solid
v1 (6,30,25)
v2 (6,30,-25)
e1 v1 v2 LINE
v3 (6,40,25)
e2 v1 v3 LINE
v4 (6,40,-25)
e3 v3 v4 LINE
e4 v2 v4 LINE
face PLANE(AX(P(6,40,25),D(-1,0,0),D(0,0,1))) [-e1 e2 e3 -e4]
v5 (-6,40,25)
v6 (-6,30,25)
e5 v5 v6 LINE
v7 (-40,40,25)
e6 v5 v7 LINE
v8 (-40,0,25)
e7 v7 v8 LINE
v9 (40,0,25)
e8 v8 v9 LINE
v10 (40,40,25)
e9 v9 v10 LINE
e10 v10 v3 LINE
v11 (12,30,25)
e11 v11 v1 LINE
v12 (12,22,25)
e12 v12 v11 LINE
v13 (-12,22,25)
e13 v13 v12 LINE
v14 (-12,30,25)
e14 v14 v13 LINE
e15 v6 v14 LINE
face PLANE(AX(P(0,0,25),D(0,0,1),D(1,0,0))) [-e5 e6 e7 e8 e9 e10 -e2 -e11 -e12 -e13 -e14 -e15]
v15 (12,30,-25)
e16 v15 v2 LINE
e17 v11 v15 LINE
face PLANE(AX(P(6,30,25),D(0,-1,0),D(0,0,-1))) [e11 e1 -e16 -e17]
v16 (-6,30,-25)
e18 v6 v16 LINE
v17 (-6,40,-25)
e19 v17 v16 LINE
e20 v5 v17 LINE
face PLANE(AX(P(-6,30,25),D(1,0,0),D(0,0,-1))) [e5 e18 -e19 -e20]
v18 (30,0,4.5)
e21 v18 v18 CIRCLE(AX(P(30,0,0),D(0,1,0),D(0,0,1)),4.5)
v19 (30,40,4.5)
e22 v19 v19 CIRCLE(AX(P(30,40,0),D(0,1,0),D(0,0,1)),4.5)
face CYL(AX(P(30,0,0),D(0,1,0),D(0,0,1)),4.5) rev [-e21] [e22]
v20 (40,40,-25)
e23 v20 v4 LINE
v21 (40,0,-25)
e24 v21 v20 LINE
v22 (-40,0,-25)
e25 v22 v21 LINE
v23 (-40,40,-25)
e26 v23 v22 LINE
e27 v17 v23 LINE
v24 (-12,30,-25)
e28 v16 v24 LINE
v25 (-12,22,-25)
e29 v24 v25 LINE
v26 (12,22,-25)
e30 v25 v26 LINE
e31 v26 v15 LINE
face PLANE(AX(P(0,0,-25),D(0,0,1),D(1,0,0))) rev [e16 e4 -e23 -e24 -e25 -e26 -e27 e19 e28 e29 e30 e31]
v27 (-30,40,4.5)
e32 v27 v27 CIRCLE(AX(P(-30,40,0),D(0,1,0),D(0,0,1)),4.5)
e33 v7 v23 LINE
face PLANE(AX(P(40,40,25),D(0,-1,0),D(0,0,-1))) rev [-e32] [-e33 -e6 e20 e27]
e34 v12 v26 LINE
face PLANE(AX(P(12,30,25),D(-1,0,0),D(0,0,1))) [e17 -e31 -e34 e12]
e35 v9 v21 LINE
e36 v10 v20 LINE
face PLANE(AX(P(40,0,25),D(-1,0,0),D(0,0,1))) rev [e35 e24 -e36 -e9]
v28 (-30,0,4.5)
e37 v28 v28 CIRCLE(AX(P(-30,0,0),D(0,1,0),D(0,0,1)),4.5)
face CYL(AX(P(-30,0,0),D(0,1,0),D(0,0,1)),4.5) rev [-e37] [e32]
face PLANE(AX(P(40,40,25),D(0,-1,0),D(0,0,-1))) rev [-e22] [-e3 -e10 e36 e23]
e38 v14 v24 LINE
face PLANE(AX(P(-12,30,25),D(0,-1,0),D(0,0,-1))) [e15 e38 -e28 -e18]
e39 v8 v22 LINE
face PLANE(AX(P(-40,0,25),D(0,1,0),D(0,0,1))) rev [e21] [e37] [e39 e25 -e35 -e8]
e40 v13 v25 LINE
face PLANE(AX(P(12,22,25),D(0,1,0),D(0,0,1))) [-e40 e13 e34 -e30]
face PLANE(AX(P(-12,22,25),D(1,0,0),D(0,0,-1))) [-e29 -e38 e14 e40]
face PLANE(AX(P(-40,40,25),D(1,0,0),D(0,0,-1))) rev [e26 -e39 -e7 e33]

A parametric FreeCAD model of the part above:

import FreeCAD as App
import Part
import Sketcher

V = App.Vector
Q = App.Units.Quantity

doc = App.newDocument("Part")
body = doc.addObject("PartDesign::Body", "Body")

# Sketch on XY plane
sketch1 = doc.addObject("Sketcher::SketchObject", "Sketch")
body.addObject(sketch1)
sketch1.AttachmentSupport = (doc.XY_Plane, [""])
sketch1.MapMode = "FlatFace"
sketch1.AttachmentOffset = App.Placement(V(0, 0, -25), App.Rotation())
sketch1.addGeometry(Part.LineSegment(V(-40, 40, 0), V(-40, 0, 0)), False)
sketch1.addGeometry(Part.LineSegment(V(-40, 0, 0), V(40, 0, 0)), False)
sketch1.addGeometry(Part.LineSegment(V(40, 0, 0), V(40, 40, 0)), False)
sketch1.addGeometry(Part.LineSegment(V(40, 40, 0), V(-40, 40, 0)), False)
sketch1.addConstraint(Sketcher.Constraint("Coincident", 0, 2, 1, 1))
sketch1.addConstraint(Sketcher.Constraint("Coincident", 1, 2, 2, 1))
sketch1.addConstraint(Sketcher.Constraint("Coincident", 2, 2, 3, 1))
sketch1.addConstraint(Sketcher.Constraint("Coincident", 3, 2, 0, 1))
sketch1.addConstraint(Sketcher.Constraint("Vertical", 0))
sketch1.addConstraint(Sketcher.Constraint("Horizontal", 1))
sketch1.addConstraint(Sketcher.Constraint("Vertical", 2))
sketch1.addConstraint(Sketcher.Constraint("Horizontal", 3))
sketch1.addConstraint(Sketcher.Constraint("Symmetric", 0, 2, 1, 2, -1, 1))
sketch1.addConstraint(Sketcher.Constraint("DistanceX", 1, 1, 1, 2, Q("80 mm")))
sketch1.addConstraint(Sketcher.Constraint("DistanceY", 0, 2, 0, 1, Q("40 mm")))
pad1 = doc.addObject("PartDesign::Pad", "Pad")
body.addObject(pad1)
pad1.Profile = sketch1
pad1.Length = 50

# Sketch on XY plane
sketch2 = doc.addObject("Sketcher::SketchObject", "Sketch001")
body.addObject(sketch2)
sketch2.AttachmentSupport = (doc.XY_Plane, [""])
sketch2.MapMode = "FlatFace"
sketch2.AttachmentOffset = App.Placement(V(0, 0, -25), App.Rotation())
sketch2.addGeometry(Part.LineSegment(V(6, 40, 0), V(-6, 40, 0)), False)
sketch2.addGeometry(Part.LineSegment(V(-6, 40, 0), V(-6, 30, 0)), False)
sketch2.addGeometry(Part.LineSegment(V(-6, 30, 0), V(-12, 30, 0)), False)
sketch2.addGeometry(Part.LineSegment(V(-12, 30, 0), V(-12, 22, 0)), False)
sketch2.addGeometry(Part.LineSegment(V(-12, 22, 0), V(12, 22, 0)), False)
sketch2.addGeometry(Part.LineSegment(V(12, 22, 0), V(12, 30, 0)), False)
sketch2.addGeometry(Part.LineSegment(V(12, 30, 0), V(6, 30, 0)), False)
sketch2.addGeometry(Part.LineSegment(V(6, 30, 0), V(6, 40, 0)), False)
sketch2.addConstraint(Sketcher.Constraint("Coincident", 0, 2, 1, 1))
sketch2.addConstraint(Sketcher.Constraint("Coincident", 1, 2, 2, 1))
sketch2.addConstraint(Sketcher.Constraint("Coincident", 2, 2, 3, 1))
sketch2.addConstraint(Sketcher.Constraint("Coincident", 3, 2, 4, 1))
sketch2.addConstraint(Sketcher.Constraint("Coincident", 4, 2, 5, 1))
sketch2.addConstraint(Sketcher.Constraint("Coincident", 5, 2, 6, 1))
sketch2.addConstraint(Sketcher.Constraint("Coincident", 6, 2, 7, 1))
sketch2.addConstraint(Sketcher.Constraint("Coincident", 7, 2, 0, 1))
sketch2.addConstraint(Sketcher.Constraint("Horizontal", 0))
sketch2.addConstraint(Sketcher.Constraint("Vertical", 1))
sketch2.addConstraint(Sketcher.Constraint("Horizontal", 2))
sketch2.addConstraint(Sketcher.Constraint("Vertical", 3))
sketch2.addConstraint(Sketcher.Constraint("Horizontal", 4))
sketch2.addConstraint(Sketcher.Constraint("Vertical", 5))
sketch2.addConstraint(Sketcher.Constraint("Horizontal", 6))
sketch2.addConstraint(Sketcher.Constraint("Vertical", 7))
sketch2.addConstraint(Sketcher.Constraint("Symmetric", 2, 2, 5, 2, -2))
sketch2.addConstraint(Sketcher.Constraint("Equal", 2, 6))
sketch2.addConstraint(Sketcher.Constraint("DistanceX", 0, 2, 0, 1, Q("12 mm")))
sketch2.addConstraint(Sketcher.Constraint("DistanceX", 2, 2, 2, 1, Q("6 mm")))
sketch2.addConstraint(Sketcher.Constraint("DistanceY", 1, 2, 1, 1, Q("10 mm")))
sketch2.addConstraint(Sketcher.Constraint("DistanceY", 3, 2, 3, 1, Q("8 mm")))
sketch2.addConstraint(Sketcher.Constraint("DistanceY", -1, 1, 0, 2, Q("40 mm")))
pocket1 = doc.addObject("PartDesign::Pocket", "Pocket")
body.addObject(pocket1)
pocket1.Profile = sketch2
pocket1.Type = "ThroughAll"
pocket1.Reversed = True

# Sketch on XZ plane
sketch3 = doc.addObject("Sketcher::SketchObject", "Sketch002")
body.addObject(sketch3)
sketch3.AttachmentSupport = (doc.XZ_Plane, [""])
sketch3.MapMode = "FlatFace"
sketch3.AttachmentOffset = App.Placement(V(0, 0, -40), App.Rotation())
sketch3.addGeometry(Part.Circle(V(-30, 0, 0), V(0, 0, 1), 4.5), False)
sketch3.addGeometry(Part.Circle(V(30, 0, 0), V(0, 0, 1), 4.5), False)
sketch3.addConstraint(Sketcher.Constraint("Equal", 0, 1))
sketch3.addConstraint(Sketcher.Constraint("Symmetric", 0, 3, 1, 3, -1, 1))
sketch3.addConstraint(Sketcher.Constraint("PointOnObject", 0, 3, -1))
sketch3.addConstraint(Sketcher.Constraint("Diameter", 0, Q("9 mm")))
sketch3.addConstraint(Sketcher.Constraint("DistanceX", 0, 3, -1, 1, Q("30 mm")))
pocket2 = doc.addObject("PartDesign::Pocket", "Pocket001")
body.addObject(pocket2)
pocket2.Profile = sketch3
pocket2.Type = "ThroughAll"
pocket2.Reversed = True

doc.recompute()
